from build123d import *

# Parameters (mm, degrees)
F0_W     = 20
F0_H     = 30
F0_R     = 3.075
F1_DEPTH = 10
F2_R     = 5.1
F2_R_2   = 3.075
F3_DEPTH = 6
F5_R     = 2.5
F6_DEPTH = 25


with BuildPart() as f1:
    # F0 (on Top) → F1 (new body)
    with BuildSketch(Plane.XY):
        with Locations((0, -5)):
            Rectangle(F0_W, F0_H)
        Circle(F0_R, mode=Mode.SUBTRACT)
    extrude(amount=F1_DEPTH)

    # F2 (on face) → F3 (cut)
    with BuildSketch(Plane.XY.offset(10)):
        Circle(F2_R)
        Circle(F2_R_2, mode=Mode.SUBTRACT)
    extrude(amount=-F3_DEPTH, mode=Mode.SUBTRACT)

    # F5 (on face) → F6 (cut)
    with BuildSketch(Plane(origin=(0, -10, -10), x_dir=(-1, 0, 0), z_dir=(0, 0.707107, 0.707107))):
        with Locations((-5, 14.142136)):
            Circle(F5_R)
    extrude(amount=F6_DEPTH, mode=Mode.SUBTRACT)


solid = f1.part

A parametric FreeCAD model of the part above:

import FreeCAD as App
import Part
import Sketcher
Q = App.Units.Quantity

doc = App.newDocument("Part")
body = doc.addObject("PartDesign::Body", "Body")

sketch1 = body.newObject("Sketcher::SketchObject", "Sketch")
sketch1.AttachmentSupport = (doc.getObject("XY_Plane"), [""])
sketch1.MapMode = "FlatFace"
sketch1.addGeometry([
    Part.LineSegment(App.Vector(-10, 10, 0), App.Vector(-10, -20, 0)),
    Part.LineSegment(App.Vector(-10, -20, 0), App.Vector(10, -20, 0)),
    Part.LineSegment(App.Vector(10, -20, 0), App.Vector(10, 10, 0)),
    Part.LineSegment(App.Vector(10, 10, 0), App.Vector(-10, 10, 0)),
    Part.Circle(App.Vector(0, 0, 0), App.Vector(0, 0, 1), 3.1),
], False)
sketch1.addConstraint([
    Sketcher.Constraint("Coincident", 0, 2, 1, 1),
    Sketcher.Constraint("Coincident", 1, 2, 2, 1),
    Sketcher.Constraint("Coincident", 2, 2, 3, 1),
    Sketcher.Constraint("Coincident", 3, 2, 0, 1),
    Sketcher.Constraint("Vertical", 0),
    Sketcher.Constraint("Horizontal", 1),
    Sketcher.Constraint("Vertical", 2),
    Sketcher.Constraint("Horizontal", 3),
    Sketcher.Constraint("Coincident", 4, 3, -1, 1),
    Sketcher.Constraint("Diameter", 4, Q("6.15 mm")),
    Sketcher.Constraint("DistanceX", 1, 1, 1, 2, Q("20 mm")),
    Sketcher.Constraint("DistanceY", 0, 2, 0, 1, Q("30 mm")),
    Sketcher.Constraint("DistanceX", 0, 2, -1, 1, Q("10 mm")),
    Sketcher.Constraint("DistanceY", 0, 2, -1, 1, Q("20 mm")),
])
pad1 = body.newObject("PartDesign::Pad", "Pad")
pad1.Profile = sketch1
pad1.Length = 10

sketch2 = body.newObject("Sketcher::SketchObject", "Sketch001")
sketch2.AttachmentSupport = (doc.getObject("XY_Plane"), [""])
sketch2.MapMode = "FlatFace"
sketch2.AttachmentOffset = App.Placement(App.Vector(0, 0, 10), App.Rotation())
sketch2.addGeometry([
    Part.Circle(App.Vector(0, 0, 0), App.Vector(0, 0, 1), 5.1),
    Part.Circle(App.Vector(0, 0, 0), App.Vector(0, 0, 1), 3.1),
], False)
sketch2.addConstraint([
    Sketcher.Constraint("Coincident", 0, 3, -1, 1),
    Sketcher.Constraint("Coincident", 1, 3, -1, 1),
    Sketcher.Constraint("Diameter", 0, Q("10.2 mm")),
    Sketcher.Constraint("Diameter", 1, Q("6.15 mm")),
])
pocket1 = body.newObject("PartDesign::Pocket", "Pocket")
pocket1.Profile = sketch2
pocket1.Length = 6

sketch3 = body.newObject("Sketcher::SketchObject", "Sketch002")
sketch3.Placement = App.Placement(App.Vector(0, -10, -10), App.Rotation(App.Vector(-1, 0, 0), App.Vector(0, -0.707106781, 0.707106781), App.Vector(0, 0.707106781, 0.707106781), "ZXY"))
sketch3.addGeometry(Part.Circle(App.Vector(-5, 14.1, 0), App.Vector(0, 0, 1), 2.5), False)
sketch3.addConstraint([
    Sketcher.Constraint("Diameter", 0, Q("5 mm")),
    Sketcher.Constraint("DistanceX", 0, 3, -1, 1, Q("5 mm")),
    Sketcher.Constraint("DistanceY", -1, 1, 0, 3, Q("14.142136 mm")),
])
pocket2 = body.newObject("PartDesign::Pocket", "Pocket001")
pocket2.Profile = sketch3
pocket2.Length = 25
pocket2.Reversed = True

doc.recompute()
